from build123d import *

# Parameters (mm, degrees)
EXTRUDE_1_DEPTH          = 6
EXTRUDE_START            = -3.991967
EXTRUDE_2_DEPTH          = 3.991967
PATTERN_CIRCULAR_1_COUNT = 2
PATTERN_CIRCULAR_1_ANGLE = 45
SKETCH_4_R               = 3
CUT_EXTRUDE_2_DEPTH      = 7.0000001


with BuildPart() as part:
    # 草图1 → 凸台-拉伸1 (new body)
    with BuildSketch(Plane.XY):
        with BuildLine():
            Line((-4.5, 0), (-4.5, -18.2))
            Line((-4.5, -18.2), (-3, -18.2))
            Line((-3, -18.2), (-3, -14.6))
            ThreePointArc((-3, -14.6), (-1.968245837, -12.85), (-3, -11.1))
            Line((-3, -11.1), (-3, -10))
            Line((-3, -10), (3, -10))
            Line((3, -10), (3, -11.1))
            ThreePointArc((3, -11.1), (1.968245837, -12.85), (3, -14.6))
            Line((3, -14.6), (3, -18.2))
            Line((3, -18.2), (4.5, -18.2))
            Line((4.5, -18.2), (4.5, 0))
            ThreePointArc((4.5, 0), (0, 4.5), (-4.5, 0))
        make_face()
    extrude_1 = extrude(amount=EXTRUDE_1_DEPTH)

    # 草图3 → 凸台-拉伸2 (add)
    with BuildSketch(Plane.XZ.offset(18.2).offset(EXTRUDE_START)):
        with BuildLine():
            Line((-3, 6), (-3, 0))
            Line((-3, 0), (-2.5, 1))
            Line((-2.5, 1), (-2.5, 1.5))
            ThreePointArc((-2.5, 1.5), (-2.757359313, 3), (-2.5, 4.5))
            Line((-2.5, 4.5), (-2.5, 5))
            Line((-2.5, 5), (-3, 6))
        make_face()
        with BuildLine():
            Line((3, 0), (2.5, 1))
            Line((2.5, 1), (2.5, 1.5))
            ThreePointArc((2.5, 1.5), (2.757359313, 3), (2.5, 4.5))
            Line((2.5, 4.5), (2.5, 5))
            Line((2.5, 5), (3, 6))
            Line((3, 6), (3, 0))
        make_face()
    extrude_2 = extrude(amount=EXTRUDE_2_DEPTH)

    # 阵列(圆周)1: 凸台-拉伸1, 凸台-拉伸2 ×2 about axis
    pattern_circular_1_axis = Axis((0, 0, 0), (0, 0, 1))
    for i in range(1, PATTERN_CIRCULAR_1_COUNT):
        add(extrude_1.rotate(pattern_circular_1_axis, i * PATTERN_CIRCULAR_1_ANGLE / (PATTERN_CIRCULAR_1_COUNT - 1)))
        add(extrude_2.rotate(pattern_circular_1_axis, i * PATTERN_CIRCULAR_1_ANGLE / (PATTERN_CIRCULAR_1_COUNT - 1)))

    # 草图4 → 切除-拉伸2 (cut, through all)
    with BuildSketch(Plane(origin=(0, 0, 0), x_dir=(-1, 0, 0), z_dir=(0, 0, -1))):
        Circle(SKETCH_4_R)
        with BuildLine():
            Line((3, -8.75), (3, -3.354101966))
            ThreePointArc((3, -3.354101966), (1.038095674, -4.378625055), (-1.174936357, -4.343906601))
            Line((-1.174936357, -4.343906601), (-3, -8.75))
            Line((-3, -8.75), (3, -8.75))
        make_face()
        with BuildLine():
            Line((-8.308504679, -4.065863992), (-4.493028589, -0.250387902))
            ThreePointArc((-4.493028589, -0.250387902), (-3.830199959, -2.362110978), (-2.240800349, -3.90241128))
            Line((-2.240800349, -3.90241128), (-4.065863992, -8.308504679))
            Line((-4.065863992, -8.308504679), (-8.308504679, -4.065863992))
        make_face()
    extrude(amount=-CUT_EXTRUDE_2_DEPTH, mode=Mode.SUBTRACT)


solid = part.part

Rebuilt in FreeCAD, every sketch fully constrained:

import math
import FreeCAD as App
import Part
import Sketcher
from FreeCAD import Vector
Q = App.Units.Quantity

doc = App.newDocument("Part")
body = doc.addObject("PartDesign::Body", "Body")

sketch1 = body.newObject("Sketcher::SketchObject", "Sketch")
sketch1.AttachmentSupport = (doc.getObject("XY_Plane"), [""])
sketch1.MapMode = "FlatFace"
sketch1.addGeometry(Part.LineSegment(Vector(-4.5, 0, 0), Vector(-4.5, -18.2, 0)), False)
sketch1.addGeometry(Part.LineSegment(Vector(-4.5, -18.2, 0), Vector(-3, -18.2, 0)), False)
sketch1.addGeometry(Part.LineSegment(Vector(-3, -18.2, 0), Vector(-3, -14.6, 0)), False)
sketch1.addGeometry(Part.ArcOfCircle(Part.Circle(Vector(-3.968246, -12.85, 0), Vector(0, 0, 1), 2), math.radians(-61.044976), math.radians(61.044976)), False)
sketch1.addGeometry(Part.LineSegment(Vector(-3, -11.1, 0), Vector(-3, -10, 0)), False)
sketch1.addGeometry(Part.LineSegment(Vector(-3, -10, 0), Vector(3, -10, 0)), False)
sketch1.addGeometry(Part.LineSegment(Vector(3, -10, 0), Vector(3, -11.1, 0)), False)
sketch1.addGeometry(Part.ArcOfCircle(Part.Circle(Vector(3.968246, -12.85, 0), Vector(0, 0, 1), 2), math.radians(118.955024), math.radians(241.044976)), False)
sketch1.addGeometry(Part.LineSegment(Vector(3, -14.6, 0), Vector(3, -18.2, 0)), False)
sketch1.addGeometry(Part.LineSegment(Vector(3, -18.2, 0), Vector(4.5, -18.2, 0)), False)
sketch1.addGeometry(Part.LineSegment(Vector(4.5, -18.2, 0), Vector(4.5, 0, 0)), False)
sketch1.addGeometry(Part.ArcOfCircle(Part.Circle(Vector(0, 0, 0), Vector(0, 0, 1), 4.5), math.radians(0), math.radians(180)), False)
sketch1.addConstraint(Sketcher.Constraint("Coincident", 0, 2, 1, 1))
sketch1.addConstraint(Sketcher.Constraint("Coincident", 1, 2, 2, 1))
sketch1.addConstraint(Sketcher.Constraint("Coincident", 2, 2, 3, 1))
sketch1.addConstraint(Sketcher.Constraint("Coincident", 3, 2, 4, 1))
sketch1.addConstraint(Sketcher.Constraint("Coincident", 4, 2, 5, 1))
sketch1.addConstraint(Sketcher.Constraint("Coincident", 5, 2, 6, 1))
sketch1.addConstraint(Sketcher.Constraint("Coincident", 6, 2, 7, 1))
sketch1.addConstraint(Sketcher.Constraint("Coincident", 7, 2, 8, 1))
sketch1.addConstraint(Sketcher.Constraint("Coincident", 8, 2, 9, 1))
sketch1.addConstraint(Sketcher.Constraint("Coincident", 9, 2, 10, 1))
sketch1.addConstraint(Sketcher.Constraint("Tangent", 10, 2, 11, 1))
sketch1.addConstraint(Sketcher.Constraint("Tangent", 11, 2, 0, 1))
sketch1.addConstraint(Sketcher.Constraint("Vertical", 0))
sketch1.addConstraint(Sketcher.Constraint("Horizontal", 1))
sketch1.addConstraint(Sketcher.Constraint("Vertical", 2))
sketch1.addConstraint(Sketcher.Constraint("Vertical", 4))
sketch1.addConstraint(Sketcher.Constraint("Horizontal", 5))
sketch1.addConstraint(Sketcher.Constraint("Vertical", 6))
sketch1.addConstraint(Sketcher.Constraint("Vertical", 8))
sketch1.addConstraint(Sketcher.Constraint("Horizontal", 9))
sketch1.addConstraint(Sketcher.Constraint("Vertical", 10))
sketch1.addConstraint(Sketcher.Constraint("Coincident", 11, 3, -1, 1))
sketch1.addConstraint(Sketcher.Constraint("Equal", 3, 7))
sketch1.addConstraint(Sketcher.Constraint("Symmetric", 3, 3, 7, 3, -2))
sketch1.addConstraint(Sketcher.Constraint("Symmetric", 1, 2, 8, 2, -2))
sketch1.addConstraint(Sketcher.Constraint("Horizontal", 3, 2, 6, 2))
sketch1.addConstraint(Sketcher.Constraint("Vertical", 2, 2, 3, 2))
sketch1.addConstraint(Sketcher.Constraint("Radius", 3, Q("2 mm")))
sketch1.addConstraint(Sketcher.Constraint("Radius", 11, Q("4.5 mm")))
sketch1.addConstraint(Sketcher.Constraint("DistanceX", 5, 1, 5, 2, Q("6 mm")))
sketch1.addConstraint(Sketcher.Constraint("DistanceY", 0, 2, 0, 1, Q("18.2 mm")))
sketch1.addConstraint(Sketcher.Constraint("DistanceY", 2, 1, 2, 2, Q("3.6 mm")))
sketch1.addConstraint(Sketcher.Constraint("DistanceY", 4, 1, 4, 2, Q("1.1 mm")))
sketch1.addConstraint(Sketcher.Constraint("DistanceY", 4, 2, -1, 1, Q("10 mm")))
pad1 = body.newObject("PartDesign::Pad", "Pad")
pad1.Profile = sketch1
pad1.Length = 6

sketch2 = body.newObject("Sketcher::SketchObject", "Sketch001")
sketch2.AttachmentSupport = (doc.getObject("XZ_Plane"), [""])
sketch2.MapMode = "FlatFace"
sketch2.AttachmentOffset = App.Placement(Vector(0, 0, 14.208033), App.Rotation())
sketch2.addGeometry(Part.LineSegment(Vector(-3, 6, 0), Vector(-3, 0, 0)), False)
sketch2.addGeometry(Part.LineSegment(Vector(-3, 0, 0), Vector(-2.5, 1, 0)), False)
sketch2.addGeometry(Part.LineSegment(Vector(-2.5, 1, 0), Vector(-2.5, 1.5, 0)), False)
sketch2.addGeometry(Part.ArcOfCircle(Part.Circle(Vector(1.742641, 3, 0), Vector(0, 0, 1), 4.5), math.radians(160.528779), math.radians(199.471221)), False)
sketch2.addGeometry(Part.LineSegment(Vector(-2.5, 4.5, 0), Vector(-2.5, 5, 0)), False)
sketch2.addGeometry(Part.LineSegment(Vector(-2.5, 5, 0), Vector(-3, 6, 0)), False)
sketch2.addGeometry(Part.LineSegment(Vector(2.5, 1, 0), Vector(3, 0, 0)), False)
sketch2.addGeometry(Part.LineSegment(Vector(3, 0, 0), Vector(3, 6, 0)), False)
sketch2.addGeometry(Part.LineSegment(Vector(3, 6, 0), Vector(2.5, 5, 0)), False)
sketch2.addGeometry(Part.LineSegment(Vector(2.5, 5, 0), Vector(2.5, 4.5, 0)), False)
sketch2.addGeometry(Part.ArcOfCircle(Part.Circle(Vector(-1.742641, 3, 0), Vector(0, 0, 1), 4.5), math.radians(-19.471221), math.radians(19.471221)), False)
sketch2.addGeometry(Part.LineSegment(Vector(2.5, 1.5, 0), Vector(2.5, 1, 0)), False)
sketch2.addConstraint(Sketcher.Constraint("Coincident", 0, 2, 1, 1))
sketch2.addConstraint(Sketcher.Constraint("Coincident", 1, 2, 2, 1))
sketch2.addConstraint(Sketcher.Constraint("Coincident", 2, 2, 3, 2))
sketch2.addConstraint(Sketcher.Constraint("Coincident", 3, 1, 4, 1))
sketch2.addConstraint(Sketcher.Constraint("Coincident", 4, 2, 5, 1))
sketch2.addConstraint(Sketcher.Constraint("Coincident", 5, 2, 0, 1))
sketch2.addConstraint(Sketcher.Constraint("Coincident", 6, 2, 7, 1))
sketch2.addConstraint(Sketcher.Constraint("Coincident", 7, 2, 8, 1))
sketch2.addConstraint(Sketcher.Constraint("Coincident", 8, 2, 9, 1))
sketch2.addConstraint(Sketcher.Constraint("Coincident", 9, 2, 10, 2))
sketch2.addConstraint(Sketcher.Constraint("Coincident", 10, 1, 11, 1))
sketch2.addConstraint(Sketcher.Constraint("Coincident", 11, 2, 6, 1))
sketch2.addConstraint(Sketcher.Constraint("Vertical", 0))
sketch2.addConstraint(Sketcher.Constraint("Vertical", 2))
sketch2.addConstraint(Sketcher.Constraint("Vertical", 4))
sketch2.addConstraint(Sketcher.Constraint("Vertical", 7))
sketch2.addConstraint(Sketcher.Constraint("Vertical", 9))
sketch2.addConstraint(Sketcher.Constraint("Vertical", 11))
sketch2.addConstraint(Sketcher.Constraint("Equal", 3, 10))
sketch2.addConstraint(Sketcher.Constraint("Symmetric", 0, 2, 6, 2, -1, 1))
sketch2.addConstraint(Sketcher.Constraint("Symmetric", 3, 3, 10, 3, -2))
sketch2.addConstraint(Sketcher.Constraint("Symmetric", 4, 2, 8, 2, -2))
sketch2.addConstraint(Sketcher.Constraint("Symmetric", 1, 2, 11, 2, -2))
sketch2.addConstraint(Sketcher.Constraint("PointOnObject", 0, 2, -1))
sketch2.addConstraint(Sketcher.Constraint("Parallel", 5, 6))
sketch2.addConstraint(Sketcher.Constraint("Parallel", 1, 8))
sketch2.addConstraint(Sketcher.Constraint("Vertical", 2, 2, 3, 1))
sketch2.addConstraint(Sketcher.Constraint("Equal", 2, 4))
sketch2.addConstraint(Sketcher.Constraint("Radius", 3, Q("4.5 mm")))
sketch2.addConstraint(Sketcher.Constraint("DistanceY", 0, 2, 0, 1, Q("6 mm")))
sketch2.addConstraint(Sketcher.Constraint("DistanceY", 2, 1, 2, 2, Q("0.5 mm")))
sketch2.addConstraint(Sketcher.Constraint("DistanceX", 0, 2, -1, 1, Q("3 mm")))
sketch2.addConstraint(Sketcher.Constraint("DistanceY", -1, 1, 1, 2, Q("1 mm")))
sketch2.addConstraint(Sketcher.Constraint("DistanceX", 4, 2, 8, 2, Q("5 mm")))
pad2 = body.newObject("PartDesign::Pad", "Pad001")
pad2.Profile = sketch2
pad2.Length = 3.991967
doc.recompute()

polarpattern = body.newObject("PartDesign::PolarPattern", "PolarPattern")
polarpattern.Originals = [pad1, pad2]
polarpattern.Axis = (doc.getObject("Z_Axis"), [""])
polarpattern.Angle = 45
polarpattern.Occurrences = 2
body.Tip = polarpattern

sketch3 = body.newObject("Sketcher::SketchObject", "Sketch002")
sketch3.AttachmentSupport = (doc.getObject("XY_Plane"), [""])
sketch3.MapMode = "FlatFace"
sketch3.addGeometry(Part.Circle(Vector(0, 0, 0), Vector(0, 0, 1), 3), False)
sketch3.addGeometry(Part.LineSegment(Vector(-3, -8.75, 0), Vector(-3, -3.354102, 0)), False)
sketch3.addGeometry(Part.ArcOfCircle(Part.Circle(Vector(0, 0, 0), Vector(0, 0, 1), 4.5), math.radians(-131.810315), math.radians(-74.864838)), False)
sketch3.addGeometry(Part.LineSegment(Vector(1.174936, -4.343907, 0), Vector(3, -8.75, 0)), False)
sketch3.addGeometry(Part.LineSegment(Vector(3, -8.75, 0), Vector(-3, -8.75, 0)), False)
sketch3.addGeometry(Part.LineSegment(Vector(4.493029, -0.250388, 0), Vector(8.308505, -4.065864, 0)), False)
sketch3.addGeometry(Part.LineSegment(Vector(8.308505, -4.065864, 0), Vector(4.065864, -8.308505, 0)), False)
sketch3.addGeometry(Part.LineSegment(Vector(4.065864, -8.308505, 0), Vector(2.2408, -3.902411, 0)), False)
sketch3.addGeometry(Part.ArcOfCircle(Part.Circle(Vector(0, 0, 0), Vector(0, 0, 1), 4.5), math.radians(-60.135162), math.radians(-3.189685)), False)
sketch3.addConstraint(Sketcher.Constraint("Coincident", 1, 2, 2, 1))
sketch3.addConstraint(Sketcher.Constraint("Coincident", 2, 2, 3, 1))
sketch3.addConstraint(Sketcher.Constraint("Coincident", 3, 2, 4, 1))
sketch3.addConstraint(Sketcher.Constraint("Coincident", 4, 2, 1, 1))
sketch3.addConstraint(Sketcher.Constraint("Coincident", 5, 2, 6, 1))
sketch3.addConstraint(Sketcher.Constraint("Coincident", 6, 2, 7, 1))
sketch3.addConstraint(Sketcher.Constraint("Coincident", 7, 2, 8, 1))
sketch3.addConstraint(Sketcher.Constraint("Coincident", 8, 2, 5, 1))
sketch3.addConstraint(Sketcher.Constraint("Vertical", 1))
sketch3.addConstraint(Sketcher.Constraint("Horizontal", 4))
sketch3.addConstraint(Sketcher.Constraint("Coincident", 0, 3, -1, 1))
sketch3.addConstraint(Sketcher.Constraint("Coincident", 2, 3, -1, 1))
sketch3.addConstraint(Sketcher.Constraint("Coincident", 8, 3, -1, 1))
sketch3.addConstraint(Sketcher.Constraint("Equal", 2, 8))
sketch3.addConstraint(Sketcher.Constraint("Perpendicular", 5, 6))
sketch3.addConstraint(Sketcher.Constraint("Parallel", 3, 7))
sketch3.addConstraint(Sketcher.Constraint("Equal", 3, 7))
sketch3.addConstraint(Sketcher.Constraint("Diameter", 0, Q("6 mm")))
sketch3.addConstraint(Sketcher.Constraint("Radius", 2, Q("4.5 mm")))
sketch3.addConstraint(Sketcher.Constraint("DistanceX", 4, 2, 4, 1, Q("6 mm")))
sketch3.addConstraint(Sketcher.Constraint("Angle", 5, Q("-45 deg")))
sketch3.addConstraint(Sketcher.Constraint("Distance", 6, Q("6 mm")))
sketch3.addConstraint(Sketcher.Constraint("DistanceX", 1, 2, -1, 1, Q("3 mm")))
sketch3.addConstraint(Sketcher.Constraint("Angle", 3, Q("-67.5 deg")))
sketch3.addConstraint(Sketcher.Constraint("DistanceY", 3, 2, -1, 1, Q("8.75 mm")))
sketch3.addConstraint(Sketcher.Constraint("Distance", 5, Q("5.395898 mm")))
pocket1 = body.newObject("PartDesign::Pocket", "Pocket")
pocket1.Profile = sketch3
pocket1.Type = "ThroughAll"
pocket1.Reversed = True

doc.recompute()
